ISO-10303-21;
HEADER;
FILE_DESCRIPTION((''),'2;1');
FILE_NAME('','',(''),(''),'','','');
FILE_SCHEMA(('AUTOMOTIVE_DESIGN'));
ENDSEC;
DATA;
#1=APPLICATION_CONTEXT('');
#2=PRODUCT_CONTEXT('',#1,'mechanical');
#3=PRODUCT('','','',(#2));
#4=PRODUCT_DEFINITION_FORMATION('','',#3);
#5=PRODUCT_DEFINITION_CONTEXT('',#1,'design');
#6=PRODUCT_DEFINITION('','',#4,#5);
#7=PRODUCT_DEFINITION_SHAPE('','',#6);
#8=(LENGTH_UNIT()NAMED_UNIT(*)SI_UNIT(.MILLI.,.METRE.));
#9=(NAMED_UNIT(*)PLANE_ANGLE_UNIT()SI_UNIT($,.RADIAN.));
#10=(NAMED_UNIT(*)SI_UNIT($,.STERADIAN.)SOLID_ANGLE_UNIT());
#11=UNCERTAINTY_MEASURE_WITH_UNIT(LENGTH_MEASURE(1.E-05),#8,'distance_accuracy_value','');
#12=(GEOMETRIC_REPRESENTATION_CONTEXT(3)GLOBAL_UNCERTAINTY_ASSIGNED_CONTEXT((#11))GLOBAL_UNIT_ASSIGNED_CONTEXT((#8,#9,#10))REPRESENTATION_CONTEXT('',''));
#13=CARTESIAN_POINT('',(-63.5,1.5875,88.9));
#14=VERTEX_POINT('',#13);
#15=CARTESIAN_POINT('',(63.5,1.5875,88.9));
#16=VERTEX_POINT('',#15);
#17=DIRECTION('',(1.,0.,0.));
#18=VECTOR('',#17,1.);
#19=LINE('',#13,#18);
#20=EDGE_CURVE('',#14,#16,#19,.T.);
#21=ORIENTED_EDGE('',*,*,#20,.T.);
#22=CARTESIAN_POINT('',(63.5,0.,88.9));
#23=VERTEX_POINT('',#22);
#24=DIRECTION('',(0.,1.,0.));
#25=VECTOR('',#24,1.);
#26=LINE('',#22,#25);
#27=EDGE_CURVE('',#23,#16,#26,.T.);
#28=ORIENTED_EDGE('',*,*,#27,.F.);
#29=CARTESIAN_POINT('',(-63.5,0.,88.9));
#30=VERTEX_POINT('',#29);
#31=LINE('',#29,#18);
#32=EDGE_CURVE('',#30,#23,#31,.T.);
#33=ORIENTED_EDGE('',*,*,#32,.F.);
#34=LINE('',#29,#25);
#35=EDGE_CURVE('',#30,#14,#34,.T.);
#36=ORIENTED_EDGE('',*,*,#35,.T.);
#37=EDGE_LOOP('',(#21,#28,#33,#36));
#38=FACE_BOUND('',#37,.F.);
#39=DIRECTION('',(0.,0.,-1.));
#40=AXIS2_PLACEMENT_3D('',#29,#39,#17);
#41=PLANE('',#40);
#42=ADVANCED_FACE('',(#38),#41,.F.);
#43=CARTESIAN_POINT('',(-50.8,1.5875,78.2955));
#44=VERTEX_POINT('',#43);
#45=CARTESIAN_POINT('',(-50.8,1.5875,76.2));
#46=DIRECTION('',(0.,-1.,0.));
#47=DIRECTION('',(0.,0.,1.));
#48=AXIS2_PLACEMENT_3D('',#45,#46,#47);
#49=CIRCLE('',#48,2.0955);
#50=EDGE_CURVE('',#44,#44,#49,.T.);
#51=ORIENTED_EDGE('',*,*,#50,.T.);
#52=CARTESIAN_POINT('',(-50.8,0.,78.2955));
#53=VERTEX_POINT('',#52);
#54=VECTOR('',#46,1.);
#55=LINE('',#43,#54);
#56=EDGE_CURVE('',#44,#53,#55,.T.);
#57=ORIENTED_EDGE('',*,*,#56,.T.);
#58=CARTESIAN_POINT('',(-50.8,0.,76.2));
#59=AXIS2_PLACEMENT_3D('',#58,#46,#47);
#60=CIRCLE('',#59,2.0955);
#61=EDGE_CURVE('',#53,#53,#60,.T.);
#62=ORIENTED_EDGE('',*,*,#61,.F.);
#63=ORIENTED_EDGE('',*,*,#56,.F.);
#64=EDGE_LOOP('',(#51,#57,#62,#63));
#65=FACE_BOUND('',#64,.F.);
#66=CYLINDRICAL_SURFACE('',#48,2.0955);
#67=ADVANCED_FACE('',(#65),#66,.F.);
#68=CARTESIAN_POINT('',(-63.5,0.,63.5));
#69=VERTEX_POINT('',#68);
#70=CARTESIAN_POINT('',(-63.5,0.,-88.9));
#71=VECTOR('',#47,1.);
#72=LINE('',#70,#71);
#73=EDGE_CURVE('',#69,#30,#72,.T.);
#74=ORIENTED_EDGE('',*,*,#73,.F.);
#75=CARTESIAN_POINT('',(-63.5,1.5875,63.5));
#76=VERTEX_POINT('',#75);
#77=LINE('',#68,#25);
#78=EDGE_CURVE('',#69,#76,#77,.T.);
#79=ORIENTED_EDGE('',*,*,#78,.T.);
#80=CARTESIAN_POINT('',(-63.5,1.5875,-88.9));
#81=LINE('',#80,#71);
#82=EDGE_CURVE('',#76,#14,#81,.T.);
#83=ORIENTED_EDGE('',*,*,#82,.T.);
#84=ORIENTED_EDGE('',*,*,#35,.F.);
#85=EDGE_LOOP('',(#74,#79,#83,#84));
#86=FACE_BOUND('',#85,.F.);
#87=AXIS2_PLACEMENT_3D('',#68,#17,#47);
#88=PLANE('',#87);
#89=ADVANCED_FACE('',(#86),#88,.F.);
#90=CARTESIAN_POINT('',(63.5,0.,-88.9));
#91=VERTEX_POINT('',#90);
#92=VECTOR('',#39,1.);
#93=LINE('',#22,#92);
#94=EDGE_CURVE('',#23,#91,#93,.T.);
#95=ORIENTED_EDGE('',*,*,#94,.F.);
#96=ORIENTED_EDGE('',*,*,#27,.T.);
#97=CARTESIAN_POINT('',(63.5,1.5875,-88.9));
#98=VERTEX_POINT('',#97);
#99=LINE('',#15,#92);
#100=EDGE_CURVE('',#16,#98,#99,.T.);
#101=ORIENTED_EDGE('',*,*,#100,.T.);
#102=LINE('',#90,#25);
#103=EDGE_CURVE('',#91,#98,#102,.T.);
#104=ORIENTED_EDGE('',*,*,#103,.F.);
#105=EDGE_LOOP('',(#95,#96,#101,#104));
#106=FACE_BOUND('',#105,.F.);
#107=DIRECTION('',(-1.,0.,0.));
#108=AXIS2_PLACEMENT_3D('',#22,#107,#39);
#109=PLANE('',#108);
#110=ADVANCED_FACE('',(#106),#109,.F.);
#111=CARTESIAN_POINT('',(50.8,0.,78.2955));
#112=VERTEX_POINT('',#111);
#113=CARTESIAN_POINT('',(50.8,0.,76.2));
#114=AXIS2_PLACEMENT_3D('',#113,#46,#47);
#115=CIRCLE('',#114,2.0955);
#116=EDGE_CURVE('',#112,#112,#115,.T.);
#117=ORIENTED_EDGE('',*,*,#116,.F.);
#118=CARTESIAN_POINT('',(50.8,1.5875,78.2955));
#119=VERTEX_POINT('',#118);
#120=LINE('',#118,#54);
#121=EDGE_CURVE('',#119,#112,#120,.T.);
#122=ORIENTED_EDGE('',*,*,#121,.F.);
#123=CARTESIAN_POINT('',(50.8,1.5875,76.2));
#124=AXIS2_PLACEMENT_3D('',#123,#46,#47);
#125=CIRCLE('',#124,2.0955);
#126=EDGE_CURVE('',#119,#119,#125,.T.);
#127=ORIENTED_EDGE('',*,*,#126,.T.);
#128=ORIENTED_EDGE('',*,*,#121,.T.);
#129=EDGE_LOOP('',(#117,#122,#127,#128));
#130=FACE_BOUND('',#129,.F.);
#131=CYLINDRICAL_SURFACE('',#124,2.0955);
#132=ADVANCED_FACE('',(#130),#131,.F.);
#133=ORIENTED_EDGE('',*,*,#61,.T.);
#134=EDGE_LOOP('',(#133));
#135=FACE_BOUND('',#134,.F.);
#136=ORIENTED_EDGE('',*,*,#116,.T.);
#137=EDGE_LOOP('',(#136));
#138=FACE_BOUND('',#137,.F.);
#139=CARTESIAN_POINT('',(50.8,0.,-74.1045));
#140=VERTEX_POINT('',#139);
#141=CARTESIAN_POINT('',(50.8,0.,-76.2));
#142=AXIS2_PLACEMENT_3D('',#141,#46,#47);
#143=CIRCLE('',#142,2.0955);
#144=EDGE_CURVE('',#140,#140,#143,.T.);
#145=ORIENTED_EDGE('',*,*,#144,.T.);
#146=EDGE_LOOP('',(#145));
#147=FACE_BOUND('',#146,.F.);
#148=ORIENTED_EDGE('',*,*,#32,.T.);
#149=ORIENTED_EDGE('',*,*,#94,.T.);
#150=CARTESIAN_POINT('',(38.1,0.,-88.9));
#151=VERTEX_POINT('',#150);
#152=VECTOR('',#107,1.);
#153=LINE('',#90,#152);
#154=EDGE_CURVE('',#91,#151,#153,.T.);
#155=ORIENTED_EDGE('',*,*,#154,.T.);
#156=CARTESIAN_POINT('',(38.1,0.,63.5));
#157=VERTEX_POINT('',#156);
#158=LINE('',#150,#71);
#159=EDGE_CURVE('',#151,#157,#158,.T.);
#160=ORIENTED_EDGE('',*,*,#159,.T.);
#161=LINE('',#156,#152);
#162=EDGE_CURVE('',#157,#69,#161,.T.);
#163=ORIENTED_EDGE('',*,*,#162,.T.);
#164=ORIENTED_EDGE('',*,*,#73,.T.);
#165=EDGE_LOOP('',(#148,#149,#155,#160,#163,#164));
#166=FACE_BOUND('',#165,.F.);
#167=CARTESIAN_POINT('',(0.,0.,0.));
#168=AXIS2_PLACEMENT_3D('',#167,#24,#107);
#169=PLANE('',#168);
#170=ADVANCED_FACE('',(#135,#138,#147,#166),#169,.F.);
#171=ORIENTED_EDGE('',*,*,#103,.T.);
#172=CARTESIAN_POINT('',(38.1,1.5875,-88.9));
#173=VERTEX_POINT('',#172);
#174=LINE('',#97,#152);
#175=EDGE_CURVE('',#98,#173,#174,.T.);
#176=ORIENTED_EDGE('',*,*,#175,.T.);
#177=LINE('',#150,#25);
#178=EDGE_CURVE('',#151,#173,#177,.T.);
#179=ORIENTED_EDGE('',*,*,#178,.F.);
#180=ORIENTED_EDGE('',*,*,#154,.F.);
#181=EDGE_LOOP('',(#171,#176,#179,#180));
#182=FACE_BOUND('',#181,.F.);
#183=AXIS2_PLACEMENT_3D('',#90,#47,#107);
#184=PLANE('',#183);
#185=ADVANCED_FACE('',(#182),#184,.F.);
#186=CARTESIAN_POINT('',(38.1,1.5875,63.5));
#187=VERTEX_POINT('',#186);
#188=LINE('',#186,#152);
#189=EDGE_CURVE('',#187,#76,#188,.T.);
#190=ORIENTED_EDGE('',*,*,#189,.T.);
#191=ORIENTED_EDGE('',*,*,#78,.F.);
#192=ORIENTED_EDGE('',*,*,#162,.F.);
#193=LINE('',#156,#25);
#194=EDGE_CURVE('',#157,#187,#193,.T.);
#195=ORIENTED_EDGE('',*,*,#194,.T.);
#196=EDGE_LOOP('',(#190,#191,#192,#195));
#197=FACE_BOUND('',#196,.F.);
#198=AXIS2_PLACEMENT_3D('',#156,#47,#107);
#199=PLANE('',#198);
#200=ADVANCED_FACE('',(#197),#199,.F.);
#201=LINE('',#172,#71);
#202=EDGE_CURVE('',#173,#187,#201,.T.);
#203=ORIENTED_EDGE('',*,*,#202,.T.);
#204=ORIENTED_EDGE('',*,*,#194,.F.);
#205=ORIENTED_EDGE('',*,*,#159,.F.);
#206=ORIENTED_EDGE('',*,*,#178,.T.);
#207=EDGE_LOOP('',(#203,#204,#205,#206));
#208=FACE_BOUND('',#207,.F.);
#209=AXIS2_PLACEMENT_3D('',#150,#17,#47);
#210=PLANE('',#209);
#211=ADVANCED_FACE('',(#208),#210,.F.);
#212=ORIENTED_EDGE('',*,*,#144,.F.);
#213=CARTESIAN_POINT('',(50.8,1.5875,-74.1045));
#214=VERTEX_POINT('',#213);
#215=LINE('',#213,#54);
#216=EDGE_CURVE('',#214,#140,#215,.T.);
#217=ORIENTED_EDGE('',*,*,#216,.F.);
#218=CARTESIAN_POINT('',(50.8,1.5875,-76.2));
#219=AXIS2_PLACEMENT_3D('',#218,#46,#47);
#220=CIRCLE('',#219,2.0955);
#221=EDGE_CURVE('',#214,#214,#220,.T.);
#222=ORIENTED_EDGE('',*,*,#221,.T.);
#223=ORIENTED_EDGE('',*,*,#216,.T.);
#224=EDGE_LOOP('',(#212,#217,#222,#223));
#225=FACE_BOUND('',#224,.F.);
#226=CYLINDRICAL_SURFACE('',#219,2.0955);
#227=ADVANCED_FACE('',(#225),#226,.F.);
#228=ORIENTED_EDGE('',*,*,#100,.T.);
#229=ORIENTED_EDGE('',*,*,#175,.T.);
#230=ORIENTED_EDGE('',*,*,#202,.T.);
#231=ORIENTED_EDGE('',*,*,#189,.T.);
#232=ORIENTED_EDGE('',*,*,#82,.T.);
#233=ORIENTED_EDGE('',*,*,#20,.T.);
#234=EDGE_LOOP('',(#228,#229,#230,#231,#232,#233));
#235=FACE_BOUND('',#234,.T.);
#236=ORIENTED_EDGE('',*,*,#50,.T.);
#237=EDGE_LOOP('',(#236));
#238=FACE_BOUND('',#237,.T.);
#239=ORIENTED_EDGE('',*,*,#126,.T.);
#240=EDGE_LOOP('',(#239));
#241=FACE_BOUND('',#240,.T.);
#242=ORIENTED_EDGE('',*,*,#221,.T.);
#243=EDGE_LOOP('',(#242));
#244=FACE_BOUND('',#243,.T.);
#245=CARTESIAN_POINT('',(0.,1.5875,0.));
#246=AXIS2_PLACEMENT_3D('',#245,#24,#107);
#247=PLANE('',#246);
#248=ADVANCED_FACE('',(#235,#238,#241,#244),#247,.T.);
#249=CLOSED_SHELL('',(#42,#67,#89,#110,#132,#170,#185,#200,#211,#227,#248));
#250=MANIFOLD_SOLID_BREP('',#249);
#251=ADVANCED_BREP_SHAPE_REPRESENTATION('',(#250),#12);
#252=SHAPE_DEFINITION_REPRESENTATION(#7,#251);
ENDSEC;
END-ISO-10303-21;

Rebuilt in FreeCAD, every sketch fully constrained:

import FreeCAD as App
import Part
import Sketcher
Q = App.Units.Quantity

doc = App.newDocument("Part")
body = doc.addObject("PartDesign::Body", "Body")

# Sketch on XZ plane
sketch1 = doc.addObject("Sketcher::SketchObject", "Sketch")
body.addObject(sketch1)
sketch1.AttachmentSupport = (doc.XZ_Plane, [""])
sketch1.MapMode = "FlatFace"
sketch1.addGeometry(Part.LineSegment(App.Vector(64, 89, 0), App.Vector(64, -89, 0)), False)
sketch1.addGeometry(Part.LineSegment(App.Vector(64, -89, 0), App.Vector(38, -89, 0)), False)
sketch1.addGeometry(Part.LineSegment(App.Vector(38, -89, 0), App.Vector(38, 64, 0)), False)
sketch1.addGeometry(Part.LineSegment(App.Vector(38, 64, 0), App.Vector(-64, 64, 0)), False)
sketch1.addGeometry(Part.LineSegment(App.Vector(-64, 64, 0), App.Vector(-64, 89, 0)), False)
sketch1.addGeometry(Part.LineSegment(App.Vector(-64, 89, 0), App.Vector(64, 89, 0)), False)
sketch1.addConstraint(Sketcher.Constraint("Coincident", 0, 2, 1, 1))
sketch1.addConstraint(Sketcher.Constraint("Coincident", 1, 2, 2, 1))
sketch1.addConstraint(Sketcher.Constraint("Coincident", 2, 2, 3, 1))
sketch1.addConstraint(Sketcher.Constraint("Coincident", 3, 2, 4, 1))
sketch1.addConstraint(Sketcher.Constraint("Coincident", 4, 2, 5, 1))
sketch1.addConstraint(Sketcher.Constraint("Coincident", 5, 2, 0, 1))
sketch1.addConstraint(Sketcher.Constraint("Vertical", 0))
sketch1.addConstraint(Sketcher.Constraint("Horizontal", 1))
sketch1.addConstraint(Sketcher.Constraint("Vertical", 2))
sketch1.addConstraint(Sketcher.Constraint("Horizontal", 3))
sketch1.addConstraint(Sketcher.Constraint("Vertical", 4))
sketch1.addConstraint(Sketcher.Constraint("Horizontal", 5))
sketch1.addConstraint(Sketcher.Constraint("Symmetric", 0, 2, 4, 2, -1, 1))
sketch1.addConstraint(Sketcher.Constraint("Equal", 1, 4))
sketch1.addConstraint(Sketcher.Constraint("DistanceX", 3, 2, 3, 1, Q("4 in")))
sketch1.addConstraint(Sketcher.Constraint("DistanceX", 5, 1, 5, 2, Q("5 in")))
sketch1.addConstraint(Sketcher.Constraint("DistanceY", 0, 2, 0, 1, Q("7 in")))
pad1 = doc.addObject("PartDesign::Pad", "Pad")
body.addObject(pad1)
pad1.Profile = sketch1
pad1.Length = Q("0.0625 in")
pad1.Reversed = True

# Sketch on XZ plane
sketch2 = doc.addObject("Sketcher::SketchObject", "Sketch001")
body.addObject(sketch2)
sketch2.AttachmentSupport = (doc.XZ_Plane, [""])
sketch2.MapMode = "FlatFace"
sketch2.AttachmentOffset = App.Placement(App.Vector(0, 0, -0.0625 * 25.4), App.Rotation())
sketch2.addGeometry(Part.Circle(App.Vector(-50.8, 76.2, 0), App.Vector(0, 0, 1), 2.1), False)
sketch2.addGeometry(Part.Circle(App.Vector(50.8, -76.2, 0), App.Vector(0, 0, 1), 2.1), False)
sketch2.addGeometry(Part.Circle(App.Vector(50.8, 76.2, 0), App.Vector(0, 0, 1), 2.1), False)
sketch2.addConstraint(Sketcher.Constraint("Equal", 0, 1))
sketch2.addConstraint(Sketcher.Constraint("Equal", 1, 2))
sketch2.addConstraint(Sketcher.Constraint("Symmetric", 0, 3, 1, 3, -1, 1))
sketch2.addConstraint(Sketcher.Constraint("Symmetric", 0, 3, 2, 3, -2))
sketch2.addConstraint(Sketcher.Constraint("Diameter", 0, Q("0.165 in")))
sketch2.addConstraint(Sketcher.Constraint("DistanceX", 0, 3, -1, 1, Q("2 in")))
sketch2.addConstraint(Sketcher.Constraint("DistanceY", -1, 1, 0, 3, Q("3 in")))
doc.recompute()
hole = doc.addObject("PartDesign::Hole", "Hole")
body.addObject(hole)
hole.Profile = sketch2
hole.ThreadType = "None"
hole.Diameter = Q("0.165 in")
hole.DepthType = "ThroughAll"
hole.Reversed = True

doc.recompute()
